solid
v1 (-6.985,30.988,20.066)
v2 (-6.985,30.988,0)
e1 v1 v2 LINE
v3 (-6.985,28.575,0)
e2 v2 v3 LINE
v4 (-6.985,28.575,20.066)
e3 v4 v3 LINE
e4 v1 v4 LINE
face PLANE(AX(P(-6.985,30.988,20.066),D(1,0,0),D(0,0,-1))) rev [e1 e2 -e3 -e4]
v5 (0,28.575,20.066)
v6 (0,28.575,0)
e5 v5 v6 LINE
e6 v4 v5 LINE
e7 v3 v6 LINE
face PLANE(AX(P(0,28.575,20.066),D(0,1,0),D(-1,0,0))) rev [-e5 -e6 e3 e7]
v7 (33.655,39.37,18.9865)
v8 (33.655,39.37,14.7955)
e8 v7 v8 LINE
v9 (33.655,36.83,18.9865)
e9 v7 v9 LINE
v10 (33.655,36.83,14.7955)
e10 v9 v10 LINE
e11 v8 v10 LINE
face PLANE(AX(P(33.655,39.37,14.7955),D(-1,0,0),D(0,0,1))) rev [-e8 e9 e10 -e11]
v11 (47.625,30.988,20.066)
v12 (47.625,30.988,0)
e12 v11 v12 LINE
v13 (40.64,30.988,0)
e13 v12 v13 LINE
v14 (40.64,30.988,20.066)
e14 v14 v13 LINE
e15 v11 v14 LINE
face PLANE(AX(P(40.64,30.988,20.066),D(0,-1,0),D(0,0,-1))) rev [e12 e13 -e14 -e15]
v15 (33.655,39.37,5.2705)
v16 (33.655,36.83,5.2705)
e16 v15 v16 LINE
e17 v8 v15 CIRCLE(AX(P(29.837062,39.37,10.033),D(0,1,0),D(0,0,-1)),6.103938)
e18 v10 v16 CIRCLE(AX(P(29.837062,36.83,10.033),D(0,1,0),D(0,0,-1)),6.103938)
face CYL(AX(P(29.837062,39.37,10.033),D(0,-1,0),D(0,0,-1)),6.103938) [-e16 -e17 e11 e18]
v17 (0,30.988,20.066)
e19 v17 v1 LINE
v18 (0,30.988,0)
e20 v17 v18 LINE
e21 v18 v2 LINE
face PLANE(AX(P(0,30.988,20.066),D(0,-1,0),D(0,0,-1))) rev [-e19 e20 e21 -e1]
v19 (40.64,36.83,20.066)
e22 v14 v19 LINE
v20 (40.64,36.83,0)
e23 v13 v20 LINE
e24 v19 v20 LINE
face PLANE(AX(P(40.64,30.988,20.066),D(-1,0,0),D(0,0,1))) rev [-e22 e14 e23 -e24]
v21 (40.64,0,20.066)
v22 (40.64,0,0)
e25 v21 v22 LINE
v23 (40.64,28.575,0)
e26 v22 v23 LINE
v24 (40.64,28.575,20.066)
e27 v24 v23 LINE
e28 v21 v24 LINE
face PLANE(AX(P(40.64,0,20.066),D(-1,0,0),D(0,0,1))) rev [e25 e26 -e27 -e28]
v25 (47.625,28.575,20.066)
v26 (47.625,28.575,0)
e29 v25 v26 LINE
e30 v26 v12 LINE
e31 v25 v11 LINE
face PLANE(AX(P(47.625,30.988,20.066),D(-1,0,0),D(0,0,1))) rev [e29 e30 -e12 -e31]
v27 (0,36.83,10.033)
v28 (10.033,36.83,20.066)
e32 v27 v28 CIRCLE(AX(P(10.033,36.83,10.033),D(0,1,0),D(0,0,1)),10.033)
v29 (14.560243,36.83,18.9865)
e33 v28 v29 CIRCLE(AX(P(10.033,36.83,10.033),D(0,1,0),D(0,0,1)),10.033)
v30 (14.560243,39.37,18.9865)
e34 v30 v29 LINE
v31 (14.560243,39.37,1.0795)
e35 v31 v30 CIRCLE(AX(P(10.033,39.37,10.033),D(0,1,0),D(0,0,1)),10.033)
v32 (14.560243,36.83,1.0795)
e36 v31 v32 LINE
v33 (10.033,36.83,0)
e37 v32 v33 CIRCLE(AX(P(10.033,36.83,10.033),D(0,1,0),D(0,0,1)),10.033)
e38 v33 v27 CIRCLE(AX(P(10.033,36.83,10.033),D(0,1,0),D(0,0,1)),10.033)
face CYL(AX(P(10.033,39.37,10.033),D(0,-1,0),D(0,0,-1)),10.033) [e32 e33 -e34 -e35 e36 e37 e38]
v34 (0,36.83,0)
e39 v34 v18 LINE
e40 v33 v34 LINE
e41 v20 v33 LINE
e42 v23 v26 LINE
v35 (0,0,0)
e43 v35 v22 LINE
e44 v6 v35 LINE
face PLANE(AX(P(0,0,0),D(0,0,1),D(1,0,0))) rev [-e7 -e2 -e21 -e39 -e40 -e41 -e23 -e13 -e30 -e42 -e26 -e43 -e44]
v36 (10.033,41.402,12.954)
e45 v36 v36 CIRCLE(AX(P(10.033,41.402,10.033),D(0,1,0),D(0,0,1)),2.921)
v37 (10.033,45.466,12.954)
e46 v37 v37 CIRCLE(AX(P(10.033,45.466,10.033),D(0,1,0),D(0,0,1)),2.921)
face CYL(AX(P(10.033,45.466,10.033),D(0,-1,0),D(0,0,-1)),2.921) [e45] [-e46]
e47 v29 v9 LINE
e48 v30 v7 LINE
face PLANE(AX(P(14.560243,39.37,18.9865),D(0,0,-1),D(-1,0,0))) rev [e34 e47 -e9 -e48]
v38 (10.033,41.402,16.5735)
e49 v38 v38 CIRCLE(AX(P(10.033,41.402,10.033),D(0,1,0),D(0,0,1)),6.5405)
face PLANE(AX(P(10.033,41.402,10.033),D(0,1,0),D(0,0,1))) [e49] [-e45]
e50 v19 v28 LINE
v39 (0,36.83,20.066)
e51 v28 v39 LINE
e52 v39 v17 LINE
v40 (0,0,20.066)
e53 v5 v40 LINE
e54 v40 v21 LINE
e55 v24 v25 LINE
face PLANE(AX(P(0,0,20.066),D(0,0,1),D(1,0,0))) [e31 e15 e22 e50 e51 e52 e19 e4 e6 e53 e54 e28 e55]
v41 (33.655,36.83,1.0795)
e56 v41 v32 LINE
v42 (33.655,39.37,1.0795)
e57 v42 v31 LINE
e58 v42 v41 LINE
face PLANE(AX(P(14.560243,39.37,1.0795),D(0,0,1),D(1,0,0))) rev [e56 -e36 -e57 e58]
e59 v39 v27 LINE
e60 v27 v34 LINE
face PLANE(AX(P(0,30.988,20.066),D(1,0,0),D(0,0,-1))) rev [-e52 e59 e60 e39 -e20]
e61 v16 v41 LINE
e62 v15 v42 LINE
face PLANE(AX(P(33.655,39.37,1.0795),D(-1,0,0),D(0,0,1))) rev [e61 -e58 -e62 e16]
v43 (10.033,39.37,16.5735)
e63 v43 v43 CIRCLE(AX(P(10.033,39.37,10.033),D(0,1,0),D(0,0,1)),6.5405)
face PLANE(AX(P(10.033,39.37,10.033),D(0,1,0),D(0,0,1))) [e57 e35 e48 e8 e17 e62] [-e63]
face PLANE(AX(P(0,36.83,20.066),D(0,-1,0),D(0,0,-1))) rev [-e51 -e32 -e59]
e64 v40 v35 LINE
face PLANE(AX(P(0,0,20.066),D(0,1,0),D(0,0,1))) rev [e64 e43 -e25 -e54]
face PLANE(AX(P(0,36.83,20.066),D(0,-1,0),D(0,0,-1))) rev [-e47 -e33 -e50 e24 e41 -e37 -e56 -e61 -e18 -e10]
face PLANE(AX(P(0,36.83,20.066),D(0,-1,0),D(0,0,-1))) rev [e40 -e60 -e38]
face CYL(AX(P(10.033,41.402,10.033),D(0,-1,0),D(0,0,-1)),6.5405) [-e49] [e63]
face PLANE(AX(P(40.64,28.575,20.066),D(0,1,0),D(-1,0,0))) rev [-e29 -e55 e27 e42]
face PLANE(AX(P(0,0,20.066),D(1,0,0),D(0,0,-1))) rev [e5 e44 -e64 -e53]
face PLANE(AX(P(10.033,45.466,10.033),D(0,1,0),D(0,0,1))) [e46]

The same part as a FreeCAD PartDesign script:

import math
import FreeCAD as App
import Part
import Sketcher

V = App.Vector
Q = App.Units.Quantity

doc = App.newDocument("Part")
body = doc.addObject("PartDesign::Body", "Body")

sketch1 = doc.addObject("Sketcher::SketchObject", "Sketch")
body.addObject(sketch1)
sketch1.AttachmentSupport = (doc.XY_Plane, [""])
sketch1.MapMode = "FlatFace"
sketch1.addGeometry([
    Part.LineSegment(V(0, 0, 0), V(40.6, 0, 0)),
    Part.LineSegment(V(40.6, 0, 0), V(40.6, 28.6, 0)),
    Part.LineSegment(V(40.6, 28.6, 0), V(47.6, 28.6, 0)),
    Part.LineSegment(V(47.6, 28.6, 0), V(47.6, 31, 0)),
    Part.LineSegment(V(47.6, 31, 0), V(40.6, 31, 0)),
    Part.LineSegment(V(40.6, 31, 0), V(40.6, 36.8, 0)),
    Part.LineSegment(V(40.6, 36.8, 0), V(0, 36.8, 0)),
    Part.LineSegment(V(0, 36.8, 0), V(0, 31, 0)),
    Part.LineSegment(V(0, 31, 0), V(-7, 31, 0)),
    Part.LineSegment(V(-7, 31, 0), V(-7, 28.6, 0)),
    Part.LineSegment(V(-7, 28.6, 0), V(0, 28.6, 0)),
    Part.LineSegment(V(0, 28.6, 0), V(0, 0, 0)),
], False)
sketch1.addConstraint([
    Sketcher.Constraint("Coincident", 0, 2, 1, 1),
    Sketcher.Constraint("Coincident", 1, 2, 2, 1),
    Sketcher.Constraint("Coincident", 2, 2, 3, 1),
    Sketcher.Constraint("Coincident", 3, 2, 4, 1),
    Sketcher.Constraint("Coincident", 4, 2, 5, 1),
    Sketcher.Constraint("Coincident", 5, 2, 6, 1),
    Sketcher.Constraint("Coincident", 6, 2, 7, 1),
    Sketcher.Constraint("Coincident", 7, 2, 8, 1),
    Sketcher.Constraint("Coincident", 8, 2, 9, 1),
    Sketcher.Constraint("Coincident", 9, 2, 10, 1),
    Sketcher.Constraint("Coincident", 10, 2, 11, 1),
    Sketcher.Constraint("Coincident", 11, 2, 0, 1),
    Sketcher.Constraint("Horizontal", 0),
    Sketcher.Constraint("Vertical", 1),
    Sketcher.Constraint("Horizontal", 2),
    Sketcher.Constraint("Vertical", 3),
    Sketcher.Constraint("Horizontal", 4),
    Sketcher.Constraint("Vertical", 5),
    Sketcher.Constraint("Horizontal", 6),
    Sketcher.Constraint("Vertical", 7),
    Sketcher.Constraint("Horizontal", 8),
    Sketcher.Constraint("Vertical", 9),
    Sketcher.Constraint("Horizontal", 10),
    Sketcher.Constraint("Vertical", 11),
    Sketcher.Constraint("Coincident", 11, 2, -1, 1),
    Sketcher.Constraint("PointOnObject", 6, 2, -2),
    Sketcher.Constraint("Horizontal", 4, 2, 7, 2),
    Sketcher.Constraint("Horizontal", 2, 2, 9, 2),
    Sketcher.Constraint("Vertical", 1, 2, 4, 2),
    Sketcher.Constraint("Equal", 4, 8),
    Sketcher.Constraint("DistanceX", 0, 1, 0, 2, Q("1.6 in")),
    Sketcher.Constraint("DistanceY", 5, 1, 5, 2, Q("0.23 in")),
    Sketcher.Constraint("DistanceX", 2, 1, 2, 2, Q("0.275 in")),
    Sketcher.Constraint("DistanceY", 1, 1, 1, 2, Q("1.125 in")),
    Sketcher.Constraint("DistanceY", 3, 1, 3, 2, Q("0.095 in")),
])
pad1 = doc.addObject("PartDesign::Pad", "Pad")
body.addObject(pad1)
pad1.Profile = sketch1
pad1.Length = Q("0.79 in")

sketch2 = doc.addObject("Sketcher::SketchObject", "Sketch001")
body.addObject(sketch2)
sketch2.AttachmentSupport = (doc.XZ_Plane, [""])
sketch2.MapMode = "FlatFace"
sketch2.AttachmentOffset = App.Placement(V(0, 0, -1.45 * 25.4), App.Rotation())
sketch2.addGeometry([
    Part.LineSegment(V(33.7, 1.1, 0), V(14.6, 1.1, 0)),
    Part.ArcOfCircle(Part.Circle(V(10, 10, 0), V(0, 0, 1), 10), math.radians(63), math.radians(297)),
    Part.LineSegment(V(14.6, 19, 0), V(33.7, 19, 0)),
    Part.LineSegment(V(33.7, 19, 0), V(33.7, 14.8, 0)),
    Part.ArcOfCircle(Part.Circle(V(29.8, 10, 0), V(0, 0, 1), 6.1), math.radians(-51), math.radians(51)),
    Part.LineSegment(V(33.7, 5.3, 0), V(33.7, 1.1, 0)),
], False)
sketch2.addConstraint([
    Sketcher.Constraint("Coincident", 0, 2, 1, 2),
    Sketcher.Constraint("Coincident", 1, 1, 2, 1),
    Sketcher.Constraint("Coincident", 2, 2, 3, 1),
    Sketcher.Constraint("Coincident", 3, 2, 4, 2),
    Sketcher.Constraint("Coincident", 4, 1, 5, 1),
    Sketcher.Constraint("Coincident", 5, 2, 0, 1),
    Sketcher.Constraint("Horizontal", 0),
    Sketcher.Constraint("Horizontal", 2),
    Sketcher.Constraint("Vertical", 3),
    Sketcher.Constraint("Vertical", 5),
    Sketcher.Constraint("Horizontal", 1, 3, 4, 3),
    Sketcher.Constraint("Vertical", 0, 2, 1, 1),
    Sketcher.Constraint("Vertical", 3, 2, 4, 1),
    Sketcher.Constraint("Radius", 1, Q("0.395 in")),
    Sketcher.Constraint("DistanceY", 3, 2, 3, 1, Q("0.165 in")),
    Sketcher.Constraint("DistanceX", 1, 3, 2, 2, Q("0.93 in")),
    Sketcher.Constraint("DistanceY", 0, 2, 3, 2, Q("0.54 in")),
    Sketcher.Constraint("DistanceX", -1, 1, 1, 3, Q("0.395 in")),
    Sketcher.Constraint("DistanceY", -1, 1, 1, 3, Q("0.395 in")),
    Sketcher.Constraint("Radius", 4, Q("6.103937 mm")),
])
pad2 = doc.addObject("PartDesign::Pad", "Pad001")
body.addObject(pad2)
pad2.Profile = sketch2
pad2.Length = Q("0.1 in")
pad2.Reversed = True

sketch3 = doc.addObject("Sketcher::SketchObject", "Sketch002")
body.addObject(sketch3)
sketch3.AttachmentSupport = (doc.XZ_Plane, [""])
sketch3.MapMode = "FlatFace"
sketch3.AttachmentOffset = App.Placement(V(0, 0, -1.55 * 25.4), App.Rotation())
sketch3.addGeometry(Part.Circle(V(10, 10, 0), V(0, 0, 1), 7), False)
sketch3.addConstraint([
    Sketcher.Constraint("Diameter", 0, Q("0.515 in")),
    Sketcher.Constraint("DistanceX", -1, 1, 0, 3, Q("0.395 in")),
    Sketcher.Constraint("DistanceY", -1, 1, 0, 3, Q("0.395 in")),
])
pad3 = doc.addObject("PartDesign::Pad", "Pad002")
body.addObject(pad3)
pad3.Profile = sketch3
pad3.Length = Q("0.08 in")
pad3.Reversed = True

sketch4 = doc.addObject("Sketcher::SketchObject", "Sketch003")
body.addObject(sketch4)
sketch4.AttachmentSupport = (doc.XZ_Plane, [""])
sketch4.MapMode = "FlatFace"
sketch4.AttachmentOffset = App.Placement(V(0, 0, -1.63 * 25.4), App.Rotation())
sketch4.addGeometry(Part.Circle(V(10, 10, 0), V(0, 0, 1), 2.9), False)
sketch4.addConstraint([
    Sketcher.Constraint("Diameter", 0, Q("0.23 in")),
    Sketcher.Constraint("DistanceX", -1, 1, 0, 3, Q("0.395 in")),
    Sketcher.Constraint("DistanceY", -1, 1, 0, 3, Q("0.395 in")),
])
pad4 = doc.addObject("PartDesign::Pad", "Pad003")
body.addObject(pad4)
pad4.Profile = sketch4
pad4.Length = Q("0.16 in")
pad4.Reversed = True

doc.recompute()
